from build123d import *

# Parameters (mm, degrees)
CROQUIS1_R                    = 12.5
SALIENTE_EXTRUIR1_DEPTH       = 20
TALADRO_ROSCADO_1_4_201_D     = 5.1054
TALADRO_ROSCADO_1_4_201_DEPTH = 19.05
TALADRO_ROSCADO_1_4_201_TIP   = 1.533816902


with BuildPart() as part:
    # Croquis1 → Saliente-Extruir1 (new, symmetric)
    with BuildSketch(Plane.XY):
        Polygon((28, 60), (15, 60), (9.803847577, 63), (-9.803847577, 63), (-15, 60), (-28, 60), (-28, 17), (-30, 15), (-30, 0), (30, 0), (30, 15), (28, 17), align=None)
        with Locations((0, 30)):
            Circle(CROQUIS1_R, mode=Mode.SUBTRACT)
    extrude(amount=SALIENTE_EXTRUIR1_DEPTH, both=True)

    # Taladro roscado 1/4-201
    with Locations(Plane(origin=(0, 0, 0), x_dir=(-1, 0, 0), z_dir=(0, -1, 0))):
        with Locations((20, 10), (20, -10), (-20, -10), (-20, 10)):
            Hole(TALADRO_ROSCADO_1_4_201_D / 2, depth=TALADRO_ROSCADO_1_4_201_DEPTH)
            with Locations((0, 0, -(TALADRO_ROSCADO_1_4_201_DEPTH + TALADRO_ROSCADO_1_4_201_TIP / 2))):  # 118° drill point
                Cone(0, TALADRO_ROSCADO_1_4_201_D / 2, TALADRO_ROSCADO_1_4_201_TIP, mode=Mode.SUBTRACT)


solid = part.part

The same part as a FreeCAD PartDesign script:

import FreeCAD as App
import Part
import Sketcher

V = App.Vector
Q = App.Units.Quantity

doc = App.newDocument("Part")
body = doc.addObject("PartDesign::Body", "Body")

# Sketch on XY plane
sketch1 = body.newObject("Sketcher::SketchObject", "Sketch")
sketch1.AttachmentSupport = (doc.getObject("XY_Plane"), [""])
sketch1.MapMode = "FlatFace"
sketch1.addGeometry([
    Part.LineSegment(V(28, 60, 0), V(15, 60, 0)),  # 0
    Part.LineSegment(V(15, 60, 0), V(9.803848, 63, 0)),  # 1
    Part.LineSegment(V(9.803848, 63, 0), V(-9.803848, 63, 0)),  # 2
    Part.LineSegment(V(-9.803848, 63, 0), V(-15, 60, 0)),  # 3
    Part.LineSegment(V(-15, 60, 0), V(-28, 60, 0)),  # 4
    Part.LineSegment(V(-28, 60, 0), V(-28, 17, 0)),  # 5
    Part.LineSegment(V(-28, 17, 0), V(-30, 15, 0)),  # 6
    Part.LineSegment(V(-30, 15, 0), V(-30, 0, 0)),  # 7
    Part.LineSegment(V(-30, 0, 0), V(30, 0, 0)),  # 8
    Part.LineSegment(V(30, 0, 0), V(30, 15, 0)),  # 9
    Part.LineSegment(V(30, 15, 0), V(28, 17, 0)),  # 10
    Part.LineSegment(V(28, 17, 0), V(28, 60, 0)),  # 11
    Part.Circle(V(0, 30, 0), V(0, 0, 1), 12.5),  # 12
], False)
sketch1.addConstraint([
    Sketcher.Constraint("Coincident", 0, 2, 1, 1),
    Sketcher.Constraint("Coincident", 1, 2, 2, 1),
    Sketcher.Constraint("Coincident", 2, 2, 3, 1),
    Sketcher.Constraint("Coincident", 3, 2, 4, 1),
    Sketcher.Constraint("Coincident", 4, 2, 5, 1),
    Sketcher.Constraint("Coincident", 5, 2, 6, 1),
    Sketcher.Constraint("Coincident", 6, 2, 7, 1),
    Sketcher.Constraint("Coincident", 7, 2, 8, 1),
    Sketcher.Constraint("Coincident", 8, 2, 9, 1),
    Sketcher.Constraint("Coincident", 9, 2, 10, 1),
    Sketcher.Constraint("Coincident", 10, 2, 11, 1),
    Sketcher.Constraint("Coincident", 11, 2, 0, 1),
    Sketcher.Constraint("Horizontal", 0),
    Sketcher.Constraint("Horizontal", 2),
    Sketcher.Constraint("Horizontal", 4),
    Sketcher.Constraint("Vertical", 5),
    Sketcher.Constraint("Vertical", 7),
    Sketcher.Constraint("Horizontal", 8),
    Sketcher.Constraint("Vertical", 9),
    Sketcher.Constraint("Vertical", 11),
    Sketcher.Constraint("Symmetric", 7, 2, 8, 2, -1, 1),
    Sketcher.Constraint("Symmetric", 0, 2, 3, 2, -2),
    Sketcher.Constraint("Symmetric", 5, 2, 10, 2, -2),
    Sketcher.Constraint("PointOnObject", 12, 3, -2),
    Sketcher.Constraint("Perpendicular", 6, 10),
    Sketcher.Constraint("Horizontal", 6, 2, 9, 2),
    Sketcher.Constraint("Equal", 1, 3),
    Sketcher.Constraint("Diameter", 12, Q("25 mm")),
    Sketcher.Constraint("DistanceX", 0, 2, 0, 1, Q("13 mm")),
    Sketcher.Constraint("DistanceX", 8, 1, 8, 2, Q("60 mm")),
    Sketcher.Constraint("DistanceY", 5, 2, 5, 1, Q("43 mm")),
    Sketcher.Constraint("DistanceY", 7, 2, 7, 1, Q("15 mm")),
    Sketcher.Constraint("Angle", 1, Q("150 deg")),
    Sketcher.Constraint("Distance", 1, Q("6 mm")),
    Sketcher.Constraint("DistanceY", -1, 1, 12, 3, Q("30 mm")),
    Sketcher.Constraint("DistanceX", -1, 1, 0, 2, Q("15 mm")),
])
pad1 = body.newObject("PartDesign::Pad", "Pad")
pad1.Profile = sketch1
pad1.Length = 40
pad1.Midplane = True

# Sketch on XZ plane
sketch2 = body.newObject("Sketcher::SketchObject", "Sketch001")
sketch2.AttachmentSupport = (doc.getObject("XZ_Plane"), [""])
sketch2.MapMode = "FlatFace"
sketch2.addGeometry([
    Part.Circle(V(-20, -10, 0), V(0, 0, 1), 2.5527),
    Part.Circle(V(-20, 10, 0), V(0, 0, 1), 2.5527),
    Part.Circle(V(20, 10, 0), V(0, 0, 1), 2.5527),
    Part.Circle(V(20, -10, 0), V(0, 0, 1), 2.5527),
], False)
sketch2.addConstraint([
    Sketcher.Constraint("Equal", 0, 1),
    Sketcher.Constraint("Equal", 1, 2),
    Sketcher.Constraint("Equal", 2, 3),
    Sketcher.Constraint("Symmetric", 0, 3, 2, 3, -1, 1),
    Sketcher.Constraint("Symmetric", 1, 3, 3, 3, -1, 1),
    Sketcher.Constraint("Symmetric", 1, 3, 2, 3, -2),
    Sketcher.Constraint("DistanceX", 0, 3, -1, 1, Q("20 mm")),
    Sketcher.Constraint("DistanceY", 0, 3, -1, 1, Q("10 mm")),
    Sketcher.Constraint("Diameter", 0, Q("5.1054 mm")),
])
doc.recompute()
hole = body.newObject("PartDesign::Hole", "Hole")
hole.Profile = sketch2
hole.ThreadType = "None"
hole.Diameter = 5.1054
hole.DepthType = "Dimension"
hole.Depth = 19.05
hole.DrillPoint = "Angled"
hole.DrillPointAngle = 118

doc.recompute()
